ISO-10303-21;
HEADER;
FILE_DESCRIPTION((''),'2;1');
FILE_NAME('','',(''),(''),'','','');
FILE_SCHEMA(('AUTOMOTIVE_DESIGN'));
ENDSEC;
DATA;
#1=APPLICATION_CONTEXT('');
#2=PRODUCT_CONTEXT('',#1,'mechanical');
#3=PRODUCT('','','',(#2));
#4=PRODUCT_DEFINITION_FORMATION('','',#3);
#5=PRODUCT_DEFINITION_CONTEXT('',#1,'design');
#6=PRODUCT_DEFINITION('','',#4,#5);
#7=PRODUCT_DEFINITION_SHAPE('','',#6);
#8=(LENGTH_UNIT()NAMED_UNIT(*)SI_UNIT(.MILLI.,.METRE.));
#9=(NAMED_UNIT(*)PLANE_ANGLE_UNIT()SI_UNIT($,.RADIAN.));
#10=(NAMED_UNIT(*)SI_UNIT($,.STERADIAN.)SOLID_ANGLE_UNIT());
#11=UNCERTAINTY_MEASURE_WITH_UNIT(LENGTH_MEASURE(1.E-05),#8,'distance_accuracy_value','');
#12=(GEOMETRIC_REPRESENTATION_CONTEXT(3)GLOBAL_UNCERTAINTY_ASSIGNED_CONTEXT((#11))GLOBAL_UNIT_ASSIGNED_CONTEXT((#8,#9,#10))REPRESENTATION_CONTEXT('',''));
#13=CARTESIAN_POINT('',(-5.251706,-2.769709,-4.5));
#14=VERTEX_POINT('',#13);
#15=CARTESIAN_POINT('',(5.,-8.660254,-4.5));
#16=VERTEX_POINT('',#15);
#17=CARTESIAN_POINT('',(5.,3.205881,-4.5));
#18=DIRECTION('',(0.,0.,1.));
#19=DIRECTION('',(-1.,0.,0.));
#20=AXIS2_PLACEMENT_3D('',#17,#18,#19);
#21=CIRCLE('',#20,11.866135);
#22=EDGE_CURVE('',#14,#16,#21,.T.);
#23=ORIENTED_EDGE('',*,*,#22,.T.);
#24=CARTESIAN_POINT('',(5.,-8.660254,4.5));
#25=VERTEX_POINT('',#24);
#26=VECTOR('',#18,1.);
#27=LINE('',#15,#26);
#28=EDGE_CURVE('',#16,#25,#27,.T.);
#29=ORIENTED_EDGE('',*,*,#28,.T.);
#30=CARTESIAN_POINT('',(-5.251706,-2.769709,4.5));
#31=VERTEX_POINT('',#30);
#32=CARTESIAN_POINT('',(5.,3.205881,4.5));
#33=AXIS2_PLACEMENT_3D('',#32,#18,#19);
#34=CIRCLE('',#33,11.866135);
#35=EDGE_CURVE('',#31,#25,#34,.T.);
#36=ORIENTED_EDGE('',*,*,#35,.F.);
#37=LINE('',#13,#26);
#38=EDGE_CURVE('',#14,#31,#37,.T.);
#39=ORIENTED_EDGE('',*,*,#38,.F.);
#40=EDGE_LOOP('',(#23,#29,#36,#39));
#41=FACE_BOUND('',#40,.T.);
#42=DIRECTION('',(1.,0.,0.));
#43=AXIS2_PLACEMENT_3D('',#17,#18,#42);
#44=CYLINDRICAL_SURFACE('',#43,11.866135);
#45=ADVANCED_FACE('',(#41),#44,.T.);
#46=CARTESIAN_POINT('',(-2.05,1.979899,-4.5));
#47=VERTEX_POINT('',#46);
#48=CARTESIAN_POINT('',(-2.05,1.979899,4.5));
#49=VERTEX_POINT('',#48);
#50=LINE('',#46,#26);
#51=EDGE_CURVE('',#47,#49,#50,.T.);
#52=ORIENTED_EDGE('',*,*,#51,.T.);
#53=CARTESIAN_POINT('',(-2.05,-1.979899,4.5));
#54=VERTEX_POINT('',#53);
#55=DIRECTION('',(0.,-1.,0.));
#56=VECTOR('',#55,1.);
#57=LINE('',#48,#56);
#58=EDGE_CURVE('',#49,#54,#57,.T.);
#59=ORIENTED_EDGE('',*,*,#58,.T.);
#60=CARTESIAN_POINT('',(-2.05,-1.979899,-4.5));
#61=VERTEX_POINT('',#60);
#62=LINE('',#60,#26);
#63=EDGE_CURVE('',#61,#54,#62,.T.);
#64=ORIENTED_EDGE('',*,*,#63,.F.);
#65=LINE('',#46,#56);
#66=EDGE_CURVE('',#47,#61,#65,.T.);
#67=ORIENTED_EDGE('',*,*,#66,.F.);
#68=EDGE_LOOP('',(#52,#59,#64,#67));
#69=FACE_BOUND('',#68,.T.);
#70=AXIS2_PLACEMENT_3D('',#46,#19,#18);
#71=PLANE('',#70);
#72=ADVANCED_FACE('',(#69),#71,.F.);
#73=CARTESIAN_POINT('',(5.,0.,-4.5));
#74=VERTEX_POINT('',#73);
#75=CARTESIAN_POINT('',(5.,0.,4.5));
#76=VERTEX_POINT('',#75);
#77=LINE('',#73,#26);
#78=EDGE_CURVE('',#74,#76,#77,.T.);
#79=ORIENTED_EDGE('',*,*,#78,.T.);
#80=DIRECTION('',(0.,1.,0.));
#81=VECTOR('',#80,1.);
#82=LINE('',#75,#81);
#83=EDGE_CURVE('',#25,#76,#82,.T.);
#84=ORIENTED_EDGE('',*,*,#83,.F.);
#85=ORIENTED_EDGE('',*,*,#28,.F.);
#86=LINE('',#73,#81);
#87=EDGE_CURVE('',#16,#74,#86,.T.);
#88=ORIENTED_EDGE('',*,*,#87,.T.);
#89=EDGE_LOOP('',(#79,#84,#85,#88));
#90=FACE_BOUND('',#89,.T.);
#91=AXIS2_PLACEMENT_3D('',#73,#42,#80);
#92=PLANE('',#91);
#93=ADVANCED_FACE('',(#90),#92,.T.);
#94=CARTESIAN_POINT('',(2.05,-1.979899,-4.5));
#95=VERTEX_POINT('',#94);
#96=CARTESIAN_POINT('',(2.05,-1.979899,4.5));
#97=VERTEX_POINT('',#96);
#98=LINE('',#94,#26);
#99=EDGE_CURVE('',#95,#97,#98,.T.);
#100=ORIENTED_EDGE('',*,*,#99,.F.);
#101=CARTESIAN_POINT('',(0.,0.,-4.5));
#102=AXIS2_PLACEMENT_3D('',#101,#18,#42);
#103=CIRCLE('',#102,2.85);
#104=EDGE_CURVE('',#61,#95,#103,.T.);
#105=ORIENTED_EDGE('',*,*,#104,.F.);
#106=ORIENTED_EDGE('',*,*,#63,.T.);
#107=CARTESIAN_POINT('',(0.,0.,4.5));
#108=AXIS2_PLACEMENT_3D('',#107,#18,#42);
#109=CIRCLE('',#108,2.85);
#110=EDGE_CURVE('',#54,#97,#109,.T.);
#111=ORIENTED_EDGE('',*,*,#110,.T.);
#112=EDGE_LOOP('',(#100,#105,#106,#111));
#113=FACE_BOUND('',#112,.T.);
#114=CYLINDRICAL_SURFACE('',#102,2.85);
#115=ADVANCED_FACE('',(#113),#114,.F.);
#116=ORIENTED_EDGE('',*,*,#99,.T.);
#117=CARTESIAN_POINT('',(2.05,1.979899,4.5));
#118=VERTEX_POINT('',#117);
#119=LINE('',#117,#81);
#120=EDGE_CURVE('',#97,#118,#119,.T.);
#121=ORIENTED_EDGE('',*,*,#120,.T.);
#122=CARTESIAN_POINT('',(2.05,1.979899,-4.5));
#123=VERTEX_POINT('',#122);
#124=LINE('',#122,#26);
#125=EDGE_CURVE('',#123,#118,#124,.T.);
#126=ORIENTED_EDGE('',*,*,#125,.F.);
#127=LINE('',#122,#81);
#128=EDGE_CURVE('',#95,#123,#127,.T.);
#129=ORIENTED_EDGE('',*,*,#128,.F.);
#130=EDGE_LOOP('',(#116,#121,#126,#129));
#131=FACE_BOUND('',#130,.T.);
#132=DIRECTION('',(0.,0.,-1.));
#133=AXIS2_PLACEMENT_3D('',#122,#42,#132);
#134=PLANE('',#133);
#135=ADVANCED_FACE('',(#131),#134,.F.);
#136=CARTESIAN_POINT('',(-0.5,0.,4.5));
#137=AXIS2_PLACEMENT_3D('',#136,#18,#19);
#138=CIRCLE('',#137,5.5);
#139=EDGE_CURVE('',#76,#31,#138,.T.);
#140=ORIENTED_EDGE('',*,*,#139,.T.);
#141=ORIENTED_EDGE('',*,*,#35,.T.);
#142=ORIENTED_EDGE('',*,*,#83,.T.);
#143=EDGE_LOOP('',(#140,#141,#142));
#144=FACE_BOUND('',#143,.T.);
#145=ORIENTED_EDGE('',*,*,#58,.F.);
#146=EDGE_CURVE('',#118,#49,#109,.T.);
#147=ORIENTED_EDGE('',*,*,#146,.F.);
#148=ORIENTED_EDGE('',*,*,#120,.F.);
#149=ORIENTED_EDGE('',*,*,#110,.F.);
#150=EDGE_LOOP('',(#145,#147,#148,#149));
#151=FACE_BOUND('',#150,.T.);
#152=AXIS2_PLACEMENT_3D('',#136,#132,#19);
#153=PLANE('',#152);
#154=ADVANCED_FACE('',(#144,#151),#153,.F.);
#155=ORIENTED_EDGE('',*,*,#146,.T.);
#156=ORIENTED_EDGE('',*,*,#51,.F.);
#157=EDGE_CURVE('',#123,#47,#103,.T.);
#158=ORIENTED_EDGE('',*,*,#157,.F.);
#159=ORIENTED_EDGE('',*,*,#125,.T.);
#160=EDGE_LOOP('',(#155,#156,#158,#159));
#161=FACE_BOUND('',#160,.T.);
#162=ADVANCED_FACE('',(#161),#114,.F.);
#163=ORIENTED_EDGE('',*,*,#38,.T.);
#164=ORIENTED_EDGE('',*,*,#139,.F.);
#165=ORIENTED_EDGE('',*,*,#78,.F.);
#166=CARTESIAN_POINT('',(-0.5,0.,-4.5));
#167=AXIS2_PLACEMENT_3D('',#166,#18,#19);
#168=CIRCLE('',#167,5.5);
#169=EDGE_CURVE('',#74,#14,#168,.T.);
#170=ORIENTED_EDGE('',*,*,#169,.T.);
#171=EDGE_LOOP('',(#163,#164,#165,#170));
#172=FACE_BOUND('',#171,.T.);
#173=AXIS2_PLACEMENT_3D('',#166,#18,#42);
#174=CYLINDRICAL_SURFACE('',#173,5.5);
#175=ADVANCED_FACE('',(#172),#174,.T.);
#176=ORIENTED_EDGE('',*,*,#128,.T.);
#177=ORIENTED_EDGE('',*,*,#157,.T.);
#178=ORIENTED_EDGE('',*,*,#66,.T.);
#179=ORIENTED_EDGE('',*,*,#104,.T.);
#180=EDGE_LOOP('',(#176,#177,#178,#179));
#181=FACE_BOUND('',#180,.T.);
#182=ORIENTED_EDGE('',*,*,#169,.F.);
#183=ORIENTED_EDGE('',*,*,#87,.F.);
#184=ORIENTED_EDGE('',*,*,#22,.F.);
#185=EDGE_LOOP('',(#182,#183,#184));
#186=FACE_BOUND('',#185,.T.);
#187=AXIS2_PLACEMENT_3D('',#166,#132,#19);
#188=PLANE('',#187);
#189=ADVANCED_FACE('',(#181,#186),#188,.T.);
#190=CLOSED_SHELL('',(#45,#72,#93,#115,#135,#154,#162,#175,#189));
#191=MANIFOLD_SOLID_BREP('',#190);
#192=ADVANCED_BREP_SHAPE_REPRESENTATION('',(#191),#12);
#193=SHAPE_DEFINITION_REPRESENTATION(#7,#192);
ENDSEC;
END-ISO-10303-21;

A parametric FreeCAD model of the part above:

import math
import FreeCAD as App
import Part
import Sketcher
from FreeCAD import Vector
Q = App.Units.Quantity

doc = App.newDocument("Part")
body = doc.addObject("PartDesign::Body", "Body")

sketch1 = body.newObject("Sketcher::SketchObject", "Sketch")
sketch1.AttachmentSupport = (doc.getObject("XY_Plane"), [""])
sketch1.MapMode = "FlatFace"
sketch1.addGeometry([
    Part.LineSegment(Vector(5, -8.7, 0), Vector(5, 0, 0)),
    Part.ArcOfCircle(Part.Circle(Vector(-0.5, 0, 0), Vector(0, 0, 1), 5.5), math.radians(0), math.radians(210)),
    Part.ArcOfCircle(Part.Circle(Vector(5, 3.2, 0), Vector(0, 0, 1), 11.9), math.radians(-150), math.radians(-90)),
    Part.ArcOfCircle(Part.Circle(Vector(0, 0, 0), Vector(0, 0, 1), 2.8), math.radians(44), math.radians(136)),
    Part.LineSegment(Vector(2, 2, 0), Vector(2, -2, 0)),
    Part.ArcOfCircle(Part.Circle(Vector(0, 0, 0), Vector(0, 0, 1), 2.8), math.radians(-136), math.radians(-44)),
    Part.LineSegment(Vector(-2, -2, 0), Vector(-2, 2, 0)),
], False)
sketch1.addConstraint([
    Sketcher.Constraint("Tangent", 0, 2, 1, 1),
    Sketcher.Constraint("Tangent", 1, 2, 2, 1),
    Sketcher.Constraint("Coincident", 2, 2, 0, 1),
    Sketcher.Constraint("Coincident", 3, 1, 4, 1),
    Sketcher.Constraint("Coincident", 4, 2, 5, 2),
    Sketcher.Constraint("Coincident", 5, 1, 6, 1),
    Sketcher.Constraint("Coincident", 6, 2, 3, 2),
    Sketcher.Constraint("Vertical", 0),
    Sketcher.Constraint("Vertical", 4),
    Sketcher.Constraint("Vertical", 6),
    Sketcher.Constraint("Coincident", 3, 3, -1, 1),
    Sketcher.Constraint("Coincident", 5, 3, -1, 1),
    Sketcher.Constraint("Equal", 3, 5),
    Sketcher.Constraint("PointOnObject", 1, 3, -1),
    Sketcher.Constraint("Horizontal", 4, 2, 5, 1),
    Sketcher.Constraint("Vertical", 2, 3, 0, 2),
    Sketcher.Constraint("Radius", 1, Q("5.5 mm")),
    Sketcher.Constraint("Radius", 3, Q("2.85 mm")),
    Sketcher.Constraint("DistanceX", -1, 1, 2, 3, Q("5 mm")),
    Sketcher.Constraint("DistanceX", 5, 1, 4, 2, Q("4.1 mm")),
    Sketcher.Constraint("Radius", 2, Q("11.866135 mm")),
])
pad1 = body.newObject("PartDesign::Pad", "Pad")
pad1.Profile = sketch1
pad1.Type = "TwoLengths"
pad1.Length = 4.5
pad1.Length2 = 4.5

doc.recompute()
